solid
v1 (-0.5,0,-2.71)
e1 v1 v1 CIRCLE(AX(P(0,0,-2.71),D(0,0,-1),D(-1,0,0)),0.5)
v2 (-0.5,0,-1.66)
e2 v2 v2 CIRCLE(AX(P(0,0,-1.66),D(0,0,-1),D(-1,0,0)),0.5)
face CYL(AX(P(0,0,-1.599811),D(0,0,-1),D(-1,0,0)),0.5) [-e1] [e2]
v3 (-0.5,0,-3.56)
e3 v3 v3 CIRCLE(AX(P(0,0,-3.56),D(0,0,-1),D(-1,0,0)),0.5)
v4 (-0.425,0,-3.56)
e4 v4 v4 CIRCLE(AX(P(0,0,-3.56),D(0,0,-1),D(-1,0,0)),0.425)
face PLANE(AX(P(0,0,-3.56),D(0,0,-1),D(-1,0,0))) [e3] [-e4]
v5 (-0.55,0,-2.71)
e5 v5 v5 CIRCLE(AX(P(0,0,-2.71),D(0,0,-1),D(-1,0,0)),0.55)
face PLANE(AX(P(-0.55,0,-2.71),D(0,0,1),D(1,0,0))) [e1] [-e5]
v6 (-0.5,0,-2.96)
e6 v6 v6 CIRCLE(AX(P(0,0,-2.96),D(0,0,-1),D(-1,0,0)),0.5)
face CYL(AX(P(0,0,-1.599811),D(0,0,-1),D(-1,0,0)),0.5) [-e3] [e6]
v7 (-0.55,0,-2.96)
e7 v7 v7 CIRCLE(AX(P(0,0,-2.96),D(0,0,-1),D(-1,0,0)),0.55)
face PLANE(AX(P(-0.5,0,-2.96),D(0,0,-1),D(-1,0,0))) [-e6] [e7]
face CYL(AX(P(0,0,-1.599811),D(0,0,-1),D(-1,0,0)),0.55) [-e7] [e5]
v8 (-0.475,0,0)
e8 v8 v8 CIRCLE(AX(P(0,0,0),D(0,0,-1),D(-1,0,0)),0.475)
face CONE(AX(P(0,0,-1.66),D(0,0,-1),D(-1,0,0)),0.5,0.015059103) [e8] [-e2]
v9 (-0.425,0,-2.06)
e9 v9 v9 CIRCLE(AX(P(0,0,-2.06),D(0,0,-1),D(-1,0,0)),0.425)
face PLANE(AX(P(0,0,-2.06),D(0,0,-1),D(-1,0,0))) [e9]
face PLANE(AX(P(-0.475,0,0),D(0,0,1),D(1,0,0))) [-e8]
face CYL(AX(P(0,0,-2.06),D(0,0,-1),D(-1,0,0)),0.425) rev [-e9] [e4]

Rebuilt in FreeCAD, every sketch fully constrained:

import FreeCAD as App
import Part
import Sketcher

V = App.Vector

doc = App.newDocument("Part")
body = doc.addObject("PartDesign::Body", "Body")

# Sketch on XZ plane
sketch1 = doc.addObject("Sketcher::SketchObject", "Sketch")
body.addObject(sketch1)
sketch1.AttachmentSupport = (doc.XZ_Plane, [""])
sketch1.MapMode = "FlatFace"
sketch1.addGeometry(Part.LineSegment(V(0, -3.56, 0), V(-0.5, -3.56, 0)), False)
sketch1.addGeometry(Part.LineSegment(V(-0.5, -3.56, 0), V(-0.5, -2.96, 0)), False)
sketch1.addGeometry(Part.LineSegment(V(-0.5, -2.96, 0), V(-0.55, -2.96, 0)), False)
sketch1.addGeometry(Part.LineSegment(V(-0.55, -2.96, 0), V(-0.55, -2.71, 0)), False)
sketch1.addGeometry(Part.LineSegment(V(-0.55, -2.71, 0), V(-0.5, -2.71, 0)), False)
sketch1.addGeometry(Part.LineSegment(V(-0.5, -2.71, 0), V(-0.5, -1.66, 0)), False)
sketch1.addGeometry(Part.LineSegment(V(-0.5, -1.66, 0), V(-0.47, 0, 0)), False)
sketch1.addGeometry(Part.LineSegment(V(-0.47, 0, 0), V(0, 0, 0)), False)
sketch1.addGeometry(Part.LineSegment(V(0, 0, 0), V(0, -3.56, 0)), False)
sketch1.addConstraint(Sketcher.Constraint("Coincident", 0, 2, 1, 1))
sketch1.addConstraint(Sketcher.Constraint("Coincident", 1, 2, 2, 1))
sketch1.addConstraint(Sketcher.Constraint("Coincident", 2, 2, 3, 1))
sketch1.addConstraint(Sketcher.Constraint("Coincident", 3, 2, 4, 1))
sketch1.addConstraint(Sketcher.Constraint("Coincident", 4, 2, 5, 1))
sketch1.addConstraint(Sketcher.Constraint("Coincident", 5, 2, 6, 1))
sketch1.addConstraint(Sketcher.Constraint("Coincident", 6, 2, 7, 1))
sketch1.addConstraint(Sketcher.Constraint("Coincident", 7, 2, 8, 1))
sketch1.addConstraint(Sketcher.Constraint("Coincident", 8, 2, 0, 1))
sketch1.addConstraint(Sketcher.Constraint("Horizontal", 0))
sketch1.addConstraint(Sketcher.Constraint("Vertical", 1))
sketch1.addConstraint(Sketcher.Constraint("Horizontal", 2))
sketch1.addConstraint(Sketcher.Constraint("Vertical", 3))
sketch1.addConstraint(Sketcher.Constraint("Horizontal", 4))
sketch1.addConstraint(Sketcher.Constraint("Vertical", 5))
sketch1.addConstraint(Sketcher.Constraint("Horizontal", 7))
sketch1.addConstraint(Sketcher.Constraint("Vertical", 8))
sketch1.addConstraint(Sketcher.Constraint("Coincident", 7, 2, -1, 1))
sketch1.addConstraint(Sketcher.Constraint("Vertical", 1, 2, 4, 2))
sketch1.addConstraint(Sketcher.Constraint("DistanceX", 0, 2, 0, 1, 0.5))
sketch1.addConstraint(Sketcher.Constraint("DistanceY", 1, 1, 1, 2, 0.6))
sketch1.addConstraint(Sketcher.Constraint("DistanceX", 2, 2, 2, 1, 0.05))
sketch1.addConstraint(Sketcher.Constraint("DistanceY", 3, 1, 3, 2, 0.25))
sketch1.addConstraint(Sketcher.Constraint("DistanceY", 5, 1, 5, 2, 1.05))
sketch1.addConstraint(Sketcher.Constraint("DistanceY", 8, 2, 8, 1, 3.56))
sketch1.addConstraint(Sketcher.Constraint("DistanceX", 7, 1, 7, 2, 0.475))
revolution = doc.addObject("PartDesign::Revolution", "Revolution")
body.addObject(revolution)
revolution.Profile = sketch1
revolution.ReferenceAxis = (sketch1, ["V_Axis"])
revolution.Angle = 360

# Sketch on XY plane
sketch2 = doc.addObject("Sketcher::SketchObject", "Sketch001")
body.addObject(sketch2)
sketch2.AttachmentSupport = (doc.XY_Plane, [""])
sketch2.MapMode = "FlatFace"
sketch2.AttachmentOffset = App.Placement(V(0, 0, -3.56), App.Rotation())
sketch2.addGeometry(Part.Circle(V(0, 0, 0), V(0, 0, 1), 0.42), False)
sketch2.addConstraint(Sketcher.Constraint("Coincident", 0, 3, -1, 1))
sketch2.addConstraint(Sketcher.Constraint("Diameter", 0, 0.85))
pocket1 = doc.addObject("PartDesign::Pocket", "Pocket")
body.addObject(pocket1)
pocket1.Profile = sketch2
pocket1.Length = 1.5
pocket1.Reversed = True

doc.recompute()
